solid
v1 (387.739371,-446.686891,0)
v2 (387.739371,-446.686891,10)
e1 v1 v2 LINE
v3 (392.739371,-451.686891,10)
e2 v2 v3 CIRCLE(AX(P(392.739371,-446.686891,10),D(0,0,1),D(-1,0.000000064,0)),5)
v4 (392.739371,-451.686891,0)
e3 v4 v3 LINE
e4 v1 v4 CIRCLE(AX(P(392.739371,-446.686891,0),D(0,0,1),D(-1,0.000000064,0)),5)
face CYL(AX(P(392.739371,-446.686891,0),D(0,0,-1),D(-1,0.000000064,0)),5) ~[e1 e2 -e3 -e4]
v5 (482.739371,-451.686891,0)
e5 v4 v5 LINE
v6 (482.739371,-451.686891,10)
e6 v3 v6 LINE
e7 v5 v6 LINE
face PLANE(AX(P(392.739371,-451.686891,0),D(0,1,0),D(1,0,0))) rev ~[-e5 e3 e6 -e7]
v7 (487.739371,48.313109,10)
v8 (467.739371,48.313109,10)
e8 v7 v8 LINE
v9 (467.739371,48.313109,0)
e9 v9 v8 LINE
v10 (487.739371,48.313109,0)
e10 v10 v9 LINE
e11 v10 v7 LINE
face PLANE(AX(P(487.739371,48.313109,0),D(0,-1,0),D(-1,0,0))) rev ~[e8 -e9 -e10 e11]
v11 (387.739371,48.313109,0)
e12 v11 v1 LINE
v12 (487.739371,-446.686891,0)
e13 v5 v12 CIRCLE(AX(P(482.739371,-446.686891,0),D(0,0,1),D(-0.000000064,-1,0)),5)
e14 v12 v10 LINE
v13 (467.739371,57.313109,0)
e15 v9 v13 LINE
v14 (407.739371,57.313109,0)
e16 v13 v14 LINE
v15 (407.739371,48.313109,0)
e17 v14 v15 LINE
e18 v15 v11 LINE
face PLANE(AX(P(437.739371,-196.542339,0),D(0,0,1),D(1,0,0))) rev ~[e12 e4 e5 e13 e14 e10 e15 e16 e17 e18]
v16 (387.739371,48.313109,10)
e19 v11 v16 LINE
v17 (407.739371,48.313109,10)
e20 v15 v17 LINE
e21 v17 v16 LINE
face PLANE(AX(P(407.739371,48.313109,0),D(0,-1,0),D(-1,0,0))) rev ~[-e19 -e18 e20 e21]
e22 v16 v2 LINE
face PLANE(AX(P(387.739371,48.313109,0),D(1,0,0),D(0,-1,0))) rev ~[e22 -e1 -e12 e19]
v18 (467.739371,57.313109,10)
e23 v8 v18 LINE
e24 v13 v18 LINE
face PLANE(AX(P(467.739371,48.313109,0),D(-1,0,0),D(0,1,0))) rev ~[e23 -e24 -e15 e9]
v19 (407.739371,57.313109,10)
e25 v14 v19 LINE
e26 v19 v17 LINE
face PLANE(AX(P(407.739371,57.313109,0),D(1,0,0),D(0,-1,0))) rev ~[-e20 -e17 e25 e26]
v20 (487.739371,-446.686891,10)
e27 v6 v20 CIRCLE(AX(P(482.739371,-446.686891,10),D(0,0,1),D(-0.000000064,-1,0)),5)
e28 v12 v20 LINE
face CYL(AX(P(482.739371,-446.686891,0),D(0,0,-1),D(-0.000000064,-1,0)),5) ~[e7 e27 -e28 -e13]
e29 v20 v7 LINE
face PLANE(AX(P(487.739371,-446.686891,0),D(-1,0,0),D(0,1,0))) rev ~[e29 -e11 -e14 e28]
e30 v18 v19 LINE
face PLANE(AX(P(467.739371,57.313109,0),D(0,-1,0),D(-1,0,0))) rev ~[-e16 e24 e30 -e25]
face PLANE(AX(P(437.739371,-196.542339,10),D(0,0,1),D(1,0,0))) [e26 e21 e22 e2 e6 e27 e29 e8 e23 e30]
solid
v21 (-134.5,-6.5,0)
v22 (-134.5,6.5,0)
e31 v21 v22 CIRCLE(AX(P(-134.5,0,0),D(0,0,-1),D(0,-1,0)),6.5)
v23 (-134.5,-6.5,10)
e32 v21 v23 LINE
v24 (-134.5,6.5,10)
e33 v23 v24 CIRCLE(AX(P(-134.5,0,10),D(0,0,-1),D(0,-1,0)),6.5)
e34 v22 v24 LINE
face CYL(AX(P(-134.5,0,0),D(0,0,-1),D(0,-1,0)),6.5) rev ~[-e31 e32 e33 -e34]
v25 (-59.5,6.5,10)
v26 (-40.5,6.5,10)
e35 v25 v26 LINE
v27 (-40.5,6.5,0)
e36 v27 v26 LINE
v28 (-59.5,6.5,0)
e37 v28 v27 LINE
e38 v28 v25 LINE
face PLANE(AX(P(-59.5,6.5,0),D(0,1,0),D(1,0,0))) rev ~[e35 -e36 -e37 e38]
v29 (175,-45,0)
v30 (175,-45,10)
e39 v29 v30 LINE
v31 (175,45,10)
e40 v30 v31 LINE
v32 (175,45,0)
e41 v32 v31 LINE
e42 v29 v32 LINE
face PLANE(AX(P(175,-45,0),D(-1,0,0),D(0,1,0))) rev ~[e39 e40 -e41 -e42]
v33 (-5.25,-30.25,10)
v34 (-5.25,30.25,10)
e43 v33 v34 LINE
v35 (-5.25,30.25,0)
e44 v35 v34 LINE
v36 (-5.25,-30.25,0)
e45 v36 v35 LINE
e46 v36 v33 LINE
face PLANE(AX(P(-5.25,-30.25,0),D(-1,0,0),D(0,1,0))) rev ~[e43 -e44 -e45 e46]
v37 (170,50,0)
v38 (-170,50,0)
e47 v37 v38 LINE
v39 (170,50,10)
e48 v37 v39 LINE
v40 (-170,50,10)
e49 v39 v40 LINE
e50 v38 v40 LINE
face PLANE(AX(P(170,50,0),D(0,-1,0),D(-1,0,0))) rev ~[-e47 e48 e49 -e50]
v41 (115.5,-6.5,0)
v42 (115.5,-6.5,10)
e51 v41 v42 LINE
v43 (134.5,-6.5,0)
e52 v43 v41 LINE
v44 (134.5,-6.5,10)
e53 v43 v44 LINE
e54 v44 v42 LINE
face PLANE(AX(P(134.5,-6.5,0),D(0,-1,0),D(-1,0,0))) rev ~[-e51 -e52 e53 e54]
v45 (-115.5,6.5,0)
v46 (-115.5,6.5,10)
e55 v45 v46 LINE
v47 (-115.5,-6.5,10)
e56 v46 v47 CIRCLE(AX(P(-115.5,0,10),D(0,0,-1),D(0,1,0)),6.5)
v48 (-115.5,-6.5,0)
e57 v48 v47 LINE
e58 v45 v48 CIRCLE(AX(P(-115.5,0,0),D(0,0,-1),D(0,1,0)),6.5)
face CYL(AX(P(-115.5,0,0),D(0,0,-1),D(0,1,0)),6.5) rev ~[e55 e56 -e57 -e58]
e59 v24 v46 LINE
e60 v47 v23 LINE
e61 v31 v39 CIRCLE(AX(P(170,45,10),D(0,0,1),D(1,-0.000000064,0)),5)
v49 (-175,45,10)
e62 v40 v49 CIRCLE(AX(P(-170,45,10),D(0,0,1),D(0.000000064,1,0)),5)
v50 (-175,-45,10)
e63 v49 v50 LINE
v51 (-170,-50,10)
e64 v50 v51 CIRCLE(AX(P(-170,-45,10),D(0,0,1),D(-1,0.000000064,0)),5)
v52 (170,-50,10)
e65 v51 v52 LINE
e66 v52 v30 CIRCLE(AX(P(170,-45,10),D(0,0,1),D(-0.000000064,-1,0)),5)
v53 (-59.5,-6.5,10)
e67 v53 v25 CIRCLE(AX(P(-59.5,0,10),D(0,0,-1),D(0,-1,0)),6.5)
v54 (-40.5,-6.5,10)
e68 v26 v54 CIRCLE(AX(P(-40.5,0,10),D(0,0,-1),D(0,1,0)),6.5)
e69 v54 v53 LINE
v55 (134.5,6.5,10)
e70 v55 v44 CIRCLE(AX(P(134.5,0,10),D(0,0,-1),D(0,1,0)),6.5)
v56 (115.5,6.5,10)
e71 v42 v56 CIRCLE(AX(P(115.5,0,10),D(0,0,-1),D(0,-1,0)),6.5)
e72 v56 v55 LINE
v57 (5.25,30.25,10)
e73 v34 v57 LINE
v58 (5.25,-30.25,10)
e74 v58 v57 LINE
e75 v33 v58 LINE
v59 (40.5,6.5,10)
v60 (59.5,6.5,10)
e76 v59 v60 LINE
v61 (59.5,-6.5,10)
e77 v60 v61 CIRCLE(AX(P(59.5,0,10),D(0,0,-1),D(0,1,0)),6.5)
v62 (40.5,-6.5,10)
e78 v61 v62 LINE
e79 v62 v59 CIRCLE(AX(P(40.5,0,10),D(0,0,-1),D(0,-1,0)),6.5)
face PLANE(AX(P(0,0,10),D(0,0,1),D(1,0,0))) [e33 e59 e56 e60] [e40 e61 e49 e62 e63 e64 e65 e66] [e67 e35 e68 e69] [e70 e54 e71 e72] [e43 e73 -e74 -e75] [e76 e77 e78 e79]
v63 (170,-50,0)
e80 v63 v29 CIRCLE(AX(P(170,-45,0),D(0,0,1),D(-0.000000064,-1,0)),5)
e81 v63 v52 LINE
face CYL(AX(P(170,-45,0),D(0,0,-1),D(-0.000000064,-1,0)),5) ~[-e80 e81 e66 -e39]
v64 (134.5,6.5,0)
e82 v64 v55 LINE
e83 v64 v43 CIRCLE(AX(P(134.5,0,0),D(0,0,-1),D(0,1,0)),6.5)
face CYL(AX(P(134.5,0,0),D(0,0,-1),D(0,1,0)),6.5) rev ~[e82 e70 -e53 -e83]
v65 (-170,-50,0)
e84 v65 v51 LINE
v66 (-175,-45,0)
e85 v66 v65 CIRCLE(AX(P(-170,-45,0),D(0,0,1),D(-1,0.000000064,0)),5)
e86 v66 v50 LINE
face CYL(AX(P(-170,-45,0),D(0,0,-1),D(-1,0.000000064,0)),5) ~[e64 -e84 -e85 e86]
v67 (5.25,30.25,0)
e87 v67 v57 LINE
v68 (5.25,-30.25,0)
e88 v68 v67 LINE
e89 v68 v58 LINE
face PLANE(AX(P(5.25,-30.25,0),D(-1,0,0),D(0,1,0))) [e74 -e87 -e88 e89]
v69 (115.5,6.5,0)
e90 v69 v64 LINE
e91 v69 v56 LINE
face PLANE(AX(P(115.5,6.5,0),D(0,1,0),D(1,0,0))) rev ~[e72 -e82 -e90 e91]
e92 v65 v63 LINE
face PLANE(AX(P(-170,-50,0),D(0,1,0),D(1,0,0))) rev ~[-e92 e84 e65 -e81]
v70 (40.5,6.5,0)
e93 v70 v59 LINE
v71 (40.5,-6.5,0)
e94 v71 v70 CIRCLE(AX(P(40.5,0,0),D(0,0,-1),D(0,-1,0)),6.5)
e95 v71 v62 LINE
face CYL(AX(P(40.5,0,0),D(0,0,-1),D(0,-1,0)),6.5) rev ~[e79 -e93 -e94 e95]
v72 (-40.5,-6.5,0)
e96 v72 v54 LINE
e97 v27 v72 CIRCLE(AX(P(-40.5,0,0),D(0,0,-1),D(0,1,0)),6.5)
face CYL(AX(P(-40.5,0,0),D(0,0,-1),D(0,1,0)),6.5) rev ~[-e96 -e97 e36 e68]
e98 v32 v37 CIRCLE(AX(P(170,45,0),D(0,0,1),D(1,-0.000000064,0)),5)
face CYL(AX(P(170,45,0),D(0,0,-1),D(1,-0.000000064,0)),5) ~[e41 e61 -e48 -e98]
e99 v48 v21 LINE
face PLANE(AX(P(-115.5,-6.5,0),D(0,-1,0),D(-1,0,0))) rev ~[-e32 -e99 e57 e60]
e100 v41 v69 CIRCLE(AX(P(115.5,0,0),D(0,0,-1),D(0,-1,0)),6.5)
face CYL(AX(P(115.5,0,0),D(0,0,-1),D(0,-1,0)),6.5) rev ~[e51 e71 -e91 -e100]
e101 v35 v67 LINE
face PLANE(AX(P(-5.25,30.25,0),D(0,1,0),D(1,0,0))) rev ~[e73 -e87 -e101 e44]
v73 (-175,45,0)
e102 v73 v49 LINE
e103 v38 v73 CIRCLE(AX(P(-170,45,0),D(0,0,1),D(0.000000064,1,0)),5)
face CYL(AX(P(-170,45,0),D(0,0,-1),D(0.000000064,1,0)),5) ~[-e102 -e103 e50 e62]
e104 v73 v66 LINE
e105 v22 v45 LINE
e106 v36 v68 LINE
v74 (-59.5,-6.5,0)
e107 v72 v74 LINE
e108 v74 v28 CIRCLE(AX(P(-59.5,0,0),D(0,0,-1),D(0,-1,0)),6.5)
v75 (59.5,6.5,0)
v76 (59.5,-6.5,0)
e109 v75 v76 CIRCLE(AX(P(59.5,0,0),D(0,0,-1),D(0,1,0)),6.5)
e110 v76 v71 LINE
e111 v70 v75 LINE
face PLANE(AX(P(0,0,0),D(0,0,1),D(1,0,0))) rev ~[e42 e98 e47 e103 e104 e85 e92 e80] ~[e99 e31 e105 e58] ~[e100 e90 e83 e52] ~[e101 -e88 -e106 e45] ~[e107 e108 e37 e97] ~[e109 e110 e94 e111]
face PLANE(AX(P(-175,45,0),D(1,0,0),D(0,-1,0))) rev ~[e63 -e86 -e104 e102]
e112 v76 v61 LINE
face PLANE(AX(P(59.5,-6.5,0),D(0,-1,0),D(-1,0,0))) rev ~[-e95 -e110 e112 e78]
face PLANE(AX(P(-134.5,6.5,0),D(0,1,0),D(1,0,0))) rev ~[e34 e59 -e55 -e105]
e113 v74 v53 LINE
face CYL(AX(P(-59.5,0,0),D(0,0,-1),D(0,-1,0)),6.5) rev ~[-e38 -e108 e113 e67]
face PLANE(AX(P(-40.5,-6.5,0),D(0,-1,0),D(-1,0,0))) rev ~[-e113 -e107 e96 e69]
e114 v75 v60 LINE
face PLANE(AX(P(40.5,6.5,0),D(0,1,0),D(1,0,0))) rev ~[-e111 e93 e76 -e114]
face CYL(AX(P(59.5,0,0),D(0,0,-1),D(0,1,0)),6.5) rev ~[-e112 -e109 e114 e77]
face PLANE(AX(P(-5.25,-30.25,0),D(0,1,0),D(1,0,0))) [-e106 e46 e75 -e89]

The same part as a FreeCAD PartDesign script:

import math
import FreeCAD as App
import Part
import Sketcher
from FreeCAD import Vector
Q = App.Units.Quantity

doc = App.newDocument("Part")
body = doc.addObject("PartDesign::Body", "Body")

# Sketch on XY plane
sketch1 = body.newObject("Sketcher::SketchObject", "Sketch")
sketch1.AttachmentSupport = (doc.getObject("XY_Plane"), [""])
sketch1.MapMode = "FlatFace"
sketch1.addGeometry([
    Part.LineSegment(Vector(-170, -50, 0), Vector(170, -50, 0)),  # 0
    Part.ArcOfCircle(Part.Circle(Vector(170, -45, 0), Vector(0, 0, 1), 5), math.radians(-90), math.radians(0)),  # 1
    Part.LineSegment(Vector(175, -45, 0), Vector(175, 45, 0)),  # 2
    Part.ArcOfCircle(Part.Circle(Vector(170, 45, 0), Vector(0, 0, 1), 5), math.radians(0), math.radians(90)),  # 3
    Part.LineSegment(Vector(170, 50, 0), Vector(-170, 50, 0)),  # 4
    Part.ArcOfCircle(Part.Circle(Vector(-170, 45, 0), Vector(0, 0, 1), 5), math.radians(90), math.radians(180)),  # 5
    Part.LineSegment(Vector(-175, 45, 0), Vector(-175, -45, 0)),  # 6
    Part.ArcOfCircle(Part.Circle(Vector(-170, -45, 0), Vector(0, 0, 1), 5), math.radians(180), math.radians(270)),  # 7
    Part.LineSegment(Vector(-134.5, 6.5, 0), Vector(-115.5, 6.5, 0)),  # 8
    Part.ArcOfCircle(Part.Circle(Vector(-115.5, 0, 0), Vector(0, 0, 1), 6.5), math.radians(-90), math.radians(90)),  # 9
    Part.LineSegment(Vector(-115.5, -6.5, 0), Vector(-134.5, -6.5, 0)),  # 10
    Part.ArcOfCircle(Part.Circle(Vector(-134.5, 0, 0), Vector(0, 0, 1), 6.5), math.radians(90), math.radians(270)),  # 11
    Part.ArcOfCircle(Part.Circle(Vector(-59.5, 0, 0), Vector(0, 0, 1), 6.5), math.radians(90), math.radians(270)),  # 12
    Part.LineSegment(Vector(-59.5, 6.5, 0), Vector(-40.5, 6.5, 0)),  # 13
    Part.ArcOfCircle(Part.Circle(Vector(-40.5, 0, 0), Vector(0, 0, 1), 6.5), math.radians(-90), math.radians(90)),  # 14
    Part.LineSegment(Vector(-40.5, -6.5, 0), Vector(-59.5, -6.5, 0)),  # 15
    Part.LineSegment(Vector(5.2, -30.2, 0), Vector(-5.2, -30.2, 0)),  # 16
    Part.LineSegment(Vector(-5.2, -30.2, 0), Vector(-5.2, 30.2, 0)),  # 17
    Part.LineSegment(Vector(-5.2, 30.2, 0), Vector(5.2, 30.2, 0)),  # 18
    Part.LineSegment(Vector(5.2, 30.2, 0), Vector(5.2, -30.2, 0)),  # 19
    Part.LineSegment(Vector(40.5, 6.5, 0), Vector(59.5, 6.5, 0)),  # 20
    Part.ArcOfCircle(Part.Circle(Vector(59.5, 0, 0), Vector(0, 0, 1), 6.5), math.radians(-90), math.radians(90)),  # 21
    Part.LineSegment(Vector(59.5, -6.5, 0), Vector(40.5, -6.5, 0)),  # 22
    Part.ArcOfCircle(Part.Circle(Vector(40.5, 0, 0), Vector(0, 0, 1), 6.5), math.radians(90), math.radians(270)),  # 23
    Part.LineSegment(Vector(115.5, 6.5, 0), Vector(134.5, 6.5, 0)),  # 24
    Part.ArcOfCircle(Part.Circle(Vector(134.5, 0, 0), Vector(0, 0, 1), 6.5), math.radians(-90), math.radians(90)),  # 25
    Part.LineSegment(Vector(134.5, -6.5, 0), Vector(115.5, -6.5, 0)),  # 26
    Part.ArcOfCircle(Part.Circle(Vector(115.5, 0, 0), Vector(0, 0, 1), 6.5), math.radians(90), math.radians(270)),  # 27
], False)
sketch1.addConstraint([
    Sketcher.Constraint("Tangent", 0, 2, 1, 1),
    Sketcher.Constraint("Tangent", 1, 2, 2, 1),
    Sketcher.Constraint("Tangent", 2, 2, 3, 1),
    Sketcher.Constraint("Tangent", 3, 2, 4, 1),
    Sketcher.Constraint("Tangent", 4, 2, 5, 1),
    Sketcher.Constraint("Tangent", 5, 2, 6, 1),
    Sketcher.Constraint("Tangent", 6, 2, 7, 1),
    Sketcher.Constraint("Tangent", 7, 2, 0, 1),
    Sketcher.Constraint("Tangent", 8, 2, 9, 2),
    Sketcher.Constraint("Tangent", 9, 1, 10, 1),
    Sketcher.Constraint("Tangent", 10, 2, 11, 2),
    Sketcher.Constraint("Tangent", 11, 1, 8, 1),
    Sketcher.Constraint("Tangent", 12, 1, 13, 1),
    Sketcher.Constraint("Tangent", 13, 2, 14, 2),
    Sketcher.Constraint("Tangent", 14, 1, 15, 1),
    Sketcher.Constraint("Tangent", 15, 2, 12, 2),
    Sketcher.Constraint("Coincident", 16, 2, 17, 1),
    Sketcher.Constraint("Coincident", 17, 2, 18, 1),
    Sketcher.Constraint("Coincident", 18, 2, 19, 1),
    Sketcher.Constraint("Coincident", 19, 2, 16, 1),
    Sketcher.Constraint("Tangent", 20, 2, 21, 2),
    Sketcher.Constraint("Tangent", 21, 1, 22, 1),
    Sketcher.Constraint("Tangent", 22, 2, 23, 2),
    Sketcher.Constraint("Tangent", 23, 1, 20, 1),
    Sketcher.Constraint("Tangent", 24, 2, 25, 2),
    Sketcher.Constraint("Tangent", 25, 1, 26, 1),
    Sketcher.Constraint("Tangent", 26, 2, 27, 2),
    Sketcher.Constraint("Tangent", 27, 1, 24, 1),
    Sketcher.Constraint("Horizontal", 0),
    Sketcher.Constraint("Vertical", 2),
    Sketcher.Constraint("Horizontal", 4),
    Sketcher.Constraint("Vertical", 6),
    Sketcher.Constraint("Horizontal", 8),
    Sketcher.Constraint("Horizontal", 10),
    Sketcher.Constraint("Horizontal", 13),
    Sketcher.Constraint("Horizontal", 15),
    Sketcher.Constraint("Horizontal", 16),
    Sketcher.Constraint("Vertical", 17),
    Sketcher.Constraint("Horizontal", 18),
    Sketcher.Constraint("Vertical", 19),
    Sketcher.Constraint("Horizontal", 20),
    Sketcher.Constraint("Horizontal", 22),
    Sketcher.Constraint("Horizontal", 24),
    Sketcher.Constraint("Horizontal", 26),
    Sketcher.Constraint("Equal", 1, 3),
    Sketcher.Constraint("Equal", 3, 5),
    Sketcher.Constraint("Equal", 5, 7),
    Sketcher.Constraint("Equal", 11, 12),
    Sketcher.Constraint("Equal", 14, 21),
    Sketcher.Constraint("Equal", 23, 25),
    Sketcher.Constraint("Symmetric", 1, 3, 5, 3, -1, 1),
    Sketcher.Constraint("Symmetric", 12, 3, 21, 3, -1, 1),
    Sketcher.Constraint("Symmetric", 11, 3, 25, 3, -1, 1),
    Sketcher.Constraint("Symmetric", 16, 2, 18, 2, -1, 1),
    Sketcher.Constraint("Symmetric", 14, 3, 23, 3, -2),
    Sketcher.Constraint("Symmetric", 9, 3, 27, 3, -2),
    Sketcher.Constraint("Equal", 10, 13),
    Sketcher.Constraint("Radius", 1, Q("5 mm")),
    Sketcher.Constraint("Radius", 9, Q("6.5 mm")),
    Sketcher.Constraint("DistanceX", 0, 1, 0, 2, Q("340 mm")),
    Sketcher.Constraint("DistanceX", 8, 1, 8, 2, Q("19 mm")),
    Sketcher.Constraint("DistanceY", 2, 1, 2, 2, Q("90 mm")),
    Sketcher.Constraint("DistanceX", 16, 2, 16, 1, Q("10.5 mm")),
    Sketcher.Constraint("DistanceY", 17, 1, 17, 2, Q("60.5 mm")),
    Sketcher.Constraint("DistanceX", 9, 3, 12, 3, Q("56 mm")),
    Sketcher.Constraint("DistanceX", 14, 3, 21, 3, Q("100 mm")),
])
pad1 = body.newObject("PartDesign::Pad", "Pad")
pad1.Profile = sketch1
pad1.Length = 10
body2 = doc.addObject("PartDesign::Body", "Body001")

# Sketch on XY plane
sketch2 = body2.newObject("Sketcher::SketchObject", "Sketch001")
sketch2.AttachmentSupport = (doc.getObject("XY_Plane001"), [""])
sketch2.MapMode = "FlatFace"
sketch2.addGeometry([
    Part.LineSegment(Vector(407.7, 48.3, 0), Vector(387.7, 48.3, 0)),  # 0
    Part.LineSegment(Vector(387.7, 48.3, 0), Vector(387.7, -446.7, 0)),  # 1
    Part.ArcOfCircle(Part.Circle(Vector(392.7, -446.7, 0), Vector(0, 0, 1), 5), math.radians(180), math.radians(270)),  # 2
    Part.LineSegment(Vector(392.7, -451.7, 0), Vector(482.7, -451.7, 0)),  # 3
    Part.ArcOfCircle(Part.Circle(Vector(482.7, -446.7, 0), Vector(0, 0, 1), 5), math.radians(-90), math.radians(0)),  # 4
    Part.LineSegment(Vector(487.7, -446.7, 0), Vector(487.7, 48.3, 0)),  # 5
    Part.LineSegment(Vector(487.7, 48.3, 0), Vector(467.7, 48.3, 0)),  # 6
    Part.LineSegment(Vector(467.7, 48.3, 0), Vector(467.7, 57.3, 0)),  # 7
    Part.LineSegment(Vector(467.7, 57.3, 0), Vector(407.7, 57.3, 0)),  # 8
    Part.LineSegment(Vector(407.7, 57.3, 0), Vector(407.7, 48.3, 0)),  # 9
], False)
sketch2.addConstraint([
    Sketcher.Constraint("Coincident", 0, 2, 1, 1),
    Sketcher.Constraint("Tangent", 1, 2, 2, 1),
    Sketcher.Constraint("Tangent", 2, 2, 3, 1),
    Sketcher.Constraint("Tangent", 3, 2, 4, 1),
    Sketcher.Constraint("Tangent", 4, 2, 5, 1),
    Sketcher.Constraint("Coincident", 5, 2, 6, 1),
    Sketcher.Constraint("Coincident", 6, 2, 7, 1),
    Sketcher.Constraint("Coincident", 7, 2, 8, 1),
    Sketcher.Constraint("Coincident", 8, 2, 9, 1),
    Sketcher.Constraint("Coincident", 9, 2, 0, 1),
    Sketcher.Constraint("Horizontal", 0),
    Sketcher.Constraint("Vertical", 1),
    Sketcher.Constraint("Horizontal", 3),
    Sketcher.Constraint("Vertical", 5),
    Sketcher.Constraint("Horizontal", 6),
    Sketcher.Constraint("Vertical", 7),
    Sketcher.Constraint("Horizontal", 8),
    Sketcher.Constraint("Vertical", 9),
    Sketcher.Constraint("Equal", 2, 4),
    Sketcher.Constraint("Horizontal", 0, 2, 5, 2),
    Sketcher.Constraint("Equal", 0, 6),
    Sketcher.Constraint("Radius", 2, Q("5 mm")),
    Sketcher.Constraint("DistanceX", 0, 2, 0, 1, Q("20 mm")),
    Sketcher.Constraint("DistanceX", 3, 1, 3, 2, Q("90 mm")),
    Sketcher.Constraint("DistanceY", 1, 2, 1, 1, Q("495 mm")),
    Sketcher.Constraint("DistanceY", 7, 1, 7, 2, Q("9 mm")),
    Sketcher.Constraint("DistanceX", -1, 1, 2, 3, Q("392.739371 mm")),
    Sketcher.Constraint("DistanceY", 2, 3, -1, 1, Q("446.686891 mm")),
])
pad2 = body2.newObject("PartDesign::Pad", "Pad001")
pad2.Profile = sketch2
pad2.Length = 10

doc.recompute()
